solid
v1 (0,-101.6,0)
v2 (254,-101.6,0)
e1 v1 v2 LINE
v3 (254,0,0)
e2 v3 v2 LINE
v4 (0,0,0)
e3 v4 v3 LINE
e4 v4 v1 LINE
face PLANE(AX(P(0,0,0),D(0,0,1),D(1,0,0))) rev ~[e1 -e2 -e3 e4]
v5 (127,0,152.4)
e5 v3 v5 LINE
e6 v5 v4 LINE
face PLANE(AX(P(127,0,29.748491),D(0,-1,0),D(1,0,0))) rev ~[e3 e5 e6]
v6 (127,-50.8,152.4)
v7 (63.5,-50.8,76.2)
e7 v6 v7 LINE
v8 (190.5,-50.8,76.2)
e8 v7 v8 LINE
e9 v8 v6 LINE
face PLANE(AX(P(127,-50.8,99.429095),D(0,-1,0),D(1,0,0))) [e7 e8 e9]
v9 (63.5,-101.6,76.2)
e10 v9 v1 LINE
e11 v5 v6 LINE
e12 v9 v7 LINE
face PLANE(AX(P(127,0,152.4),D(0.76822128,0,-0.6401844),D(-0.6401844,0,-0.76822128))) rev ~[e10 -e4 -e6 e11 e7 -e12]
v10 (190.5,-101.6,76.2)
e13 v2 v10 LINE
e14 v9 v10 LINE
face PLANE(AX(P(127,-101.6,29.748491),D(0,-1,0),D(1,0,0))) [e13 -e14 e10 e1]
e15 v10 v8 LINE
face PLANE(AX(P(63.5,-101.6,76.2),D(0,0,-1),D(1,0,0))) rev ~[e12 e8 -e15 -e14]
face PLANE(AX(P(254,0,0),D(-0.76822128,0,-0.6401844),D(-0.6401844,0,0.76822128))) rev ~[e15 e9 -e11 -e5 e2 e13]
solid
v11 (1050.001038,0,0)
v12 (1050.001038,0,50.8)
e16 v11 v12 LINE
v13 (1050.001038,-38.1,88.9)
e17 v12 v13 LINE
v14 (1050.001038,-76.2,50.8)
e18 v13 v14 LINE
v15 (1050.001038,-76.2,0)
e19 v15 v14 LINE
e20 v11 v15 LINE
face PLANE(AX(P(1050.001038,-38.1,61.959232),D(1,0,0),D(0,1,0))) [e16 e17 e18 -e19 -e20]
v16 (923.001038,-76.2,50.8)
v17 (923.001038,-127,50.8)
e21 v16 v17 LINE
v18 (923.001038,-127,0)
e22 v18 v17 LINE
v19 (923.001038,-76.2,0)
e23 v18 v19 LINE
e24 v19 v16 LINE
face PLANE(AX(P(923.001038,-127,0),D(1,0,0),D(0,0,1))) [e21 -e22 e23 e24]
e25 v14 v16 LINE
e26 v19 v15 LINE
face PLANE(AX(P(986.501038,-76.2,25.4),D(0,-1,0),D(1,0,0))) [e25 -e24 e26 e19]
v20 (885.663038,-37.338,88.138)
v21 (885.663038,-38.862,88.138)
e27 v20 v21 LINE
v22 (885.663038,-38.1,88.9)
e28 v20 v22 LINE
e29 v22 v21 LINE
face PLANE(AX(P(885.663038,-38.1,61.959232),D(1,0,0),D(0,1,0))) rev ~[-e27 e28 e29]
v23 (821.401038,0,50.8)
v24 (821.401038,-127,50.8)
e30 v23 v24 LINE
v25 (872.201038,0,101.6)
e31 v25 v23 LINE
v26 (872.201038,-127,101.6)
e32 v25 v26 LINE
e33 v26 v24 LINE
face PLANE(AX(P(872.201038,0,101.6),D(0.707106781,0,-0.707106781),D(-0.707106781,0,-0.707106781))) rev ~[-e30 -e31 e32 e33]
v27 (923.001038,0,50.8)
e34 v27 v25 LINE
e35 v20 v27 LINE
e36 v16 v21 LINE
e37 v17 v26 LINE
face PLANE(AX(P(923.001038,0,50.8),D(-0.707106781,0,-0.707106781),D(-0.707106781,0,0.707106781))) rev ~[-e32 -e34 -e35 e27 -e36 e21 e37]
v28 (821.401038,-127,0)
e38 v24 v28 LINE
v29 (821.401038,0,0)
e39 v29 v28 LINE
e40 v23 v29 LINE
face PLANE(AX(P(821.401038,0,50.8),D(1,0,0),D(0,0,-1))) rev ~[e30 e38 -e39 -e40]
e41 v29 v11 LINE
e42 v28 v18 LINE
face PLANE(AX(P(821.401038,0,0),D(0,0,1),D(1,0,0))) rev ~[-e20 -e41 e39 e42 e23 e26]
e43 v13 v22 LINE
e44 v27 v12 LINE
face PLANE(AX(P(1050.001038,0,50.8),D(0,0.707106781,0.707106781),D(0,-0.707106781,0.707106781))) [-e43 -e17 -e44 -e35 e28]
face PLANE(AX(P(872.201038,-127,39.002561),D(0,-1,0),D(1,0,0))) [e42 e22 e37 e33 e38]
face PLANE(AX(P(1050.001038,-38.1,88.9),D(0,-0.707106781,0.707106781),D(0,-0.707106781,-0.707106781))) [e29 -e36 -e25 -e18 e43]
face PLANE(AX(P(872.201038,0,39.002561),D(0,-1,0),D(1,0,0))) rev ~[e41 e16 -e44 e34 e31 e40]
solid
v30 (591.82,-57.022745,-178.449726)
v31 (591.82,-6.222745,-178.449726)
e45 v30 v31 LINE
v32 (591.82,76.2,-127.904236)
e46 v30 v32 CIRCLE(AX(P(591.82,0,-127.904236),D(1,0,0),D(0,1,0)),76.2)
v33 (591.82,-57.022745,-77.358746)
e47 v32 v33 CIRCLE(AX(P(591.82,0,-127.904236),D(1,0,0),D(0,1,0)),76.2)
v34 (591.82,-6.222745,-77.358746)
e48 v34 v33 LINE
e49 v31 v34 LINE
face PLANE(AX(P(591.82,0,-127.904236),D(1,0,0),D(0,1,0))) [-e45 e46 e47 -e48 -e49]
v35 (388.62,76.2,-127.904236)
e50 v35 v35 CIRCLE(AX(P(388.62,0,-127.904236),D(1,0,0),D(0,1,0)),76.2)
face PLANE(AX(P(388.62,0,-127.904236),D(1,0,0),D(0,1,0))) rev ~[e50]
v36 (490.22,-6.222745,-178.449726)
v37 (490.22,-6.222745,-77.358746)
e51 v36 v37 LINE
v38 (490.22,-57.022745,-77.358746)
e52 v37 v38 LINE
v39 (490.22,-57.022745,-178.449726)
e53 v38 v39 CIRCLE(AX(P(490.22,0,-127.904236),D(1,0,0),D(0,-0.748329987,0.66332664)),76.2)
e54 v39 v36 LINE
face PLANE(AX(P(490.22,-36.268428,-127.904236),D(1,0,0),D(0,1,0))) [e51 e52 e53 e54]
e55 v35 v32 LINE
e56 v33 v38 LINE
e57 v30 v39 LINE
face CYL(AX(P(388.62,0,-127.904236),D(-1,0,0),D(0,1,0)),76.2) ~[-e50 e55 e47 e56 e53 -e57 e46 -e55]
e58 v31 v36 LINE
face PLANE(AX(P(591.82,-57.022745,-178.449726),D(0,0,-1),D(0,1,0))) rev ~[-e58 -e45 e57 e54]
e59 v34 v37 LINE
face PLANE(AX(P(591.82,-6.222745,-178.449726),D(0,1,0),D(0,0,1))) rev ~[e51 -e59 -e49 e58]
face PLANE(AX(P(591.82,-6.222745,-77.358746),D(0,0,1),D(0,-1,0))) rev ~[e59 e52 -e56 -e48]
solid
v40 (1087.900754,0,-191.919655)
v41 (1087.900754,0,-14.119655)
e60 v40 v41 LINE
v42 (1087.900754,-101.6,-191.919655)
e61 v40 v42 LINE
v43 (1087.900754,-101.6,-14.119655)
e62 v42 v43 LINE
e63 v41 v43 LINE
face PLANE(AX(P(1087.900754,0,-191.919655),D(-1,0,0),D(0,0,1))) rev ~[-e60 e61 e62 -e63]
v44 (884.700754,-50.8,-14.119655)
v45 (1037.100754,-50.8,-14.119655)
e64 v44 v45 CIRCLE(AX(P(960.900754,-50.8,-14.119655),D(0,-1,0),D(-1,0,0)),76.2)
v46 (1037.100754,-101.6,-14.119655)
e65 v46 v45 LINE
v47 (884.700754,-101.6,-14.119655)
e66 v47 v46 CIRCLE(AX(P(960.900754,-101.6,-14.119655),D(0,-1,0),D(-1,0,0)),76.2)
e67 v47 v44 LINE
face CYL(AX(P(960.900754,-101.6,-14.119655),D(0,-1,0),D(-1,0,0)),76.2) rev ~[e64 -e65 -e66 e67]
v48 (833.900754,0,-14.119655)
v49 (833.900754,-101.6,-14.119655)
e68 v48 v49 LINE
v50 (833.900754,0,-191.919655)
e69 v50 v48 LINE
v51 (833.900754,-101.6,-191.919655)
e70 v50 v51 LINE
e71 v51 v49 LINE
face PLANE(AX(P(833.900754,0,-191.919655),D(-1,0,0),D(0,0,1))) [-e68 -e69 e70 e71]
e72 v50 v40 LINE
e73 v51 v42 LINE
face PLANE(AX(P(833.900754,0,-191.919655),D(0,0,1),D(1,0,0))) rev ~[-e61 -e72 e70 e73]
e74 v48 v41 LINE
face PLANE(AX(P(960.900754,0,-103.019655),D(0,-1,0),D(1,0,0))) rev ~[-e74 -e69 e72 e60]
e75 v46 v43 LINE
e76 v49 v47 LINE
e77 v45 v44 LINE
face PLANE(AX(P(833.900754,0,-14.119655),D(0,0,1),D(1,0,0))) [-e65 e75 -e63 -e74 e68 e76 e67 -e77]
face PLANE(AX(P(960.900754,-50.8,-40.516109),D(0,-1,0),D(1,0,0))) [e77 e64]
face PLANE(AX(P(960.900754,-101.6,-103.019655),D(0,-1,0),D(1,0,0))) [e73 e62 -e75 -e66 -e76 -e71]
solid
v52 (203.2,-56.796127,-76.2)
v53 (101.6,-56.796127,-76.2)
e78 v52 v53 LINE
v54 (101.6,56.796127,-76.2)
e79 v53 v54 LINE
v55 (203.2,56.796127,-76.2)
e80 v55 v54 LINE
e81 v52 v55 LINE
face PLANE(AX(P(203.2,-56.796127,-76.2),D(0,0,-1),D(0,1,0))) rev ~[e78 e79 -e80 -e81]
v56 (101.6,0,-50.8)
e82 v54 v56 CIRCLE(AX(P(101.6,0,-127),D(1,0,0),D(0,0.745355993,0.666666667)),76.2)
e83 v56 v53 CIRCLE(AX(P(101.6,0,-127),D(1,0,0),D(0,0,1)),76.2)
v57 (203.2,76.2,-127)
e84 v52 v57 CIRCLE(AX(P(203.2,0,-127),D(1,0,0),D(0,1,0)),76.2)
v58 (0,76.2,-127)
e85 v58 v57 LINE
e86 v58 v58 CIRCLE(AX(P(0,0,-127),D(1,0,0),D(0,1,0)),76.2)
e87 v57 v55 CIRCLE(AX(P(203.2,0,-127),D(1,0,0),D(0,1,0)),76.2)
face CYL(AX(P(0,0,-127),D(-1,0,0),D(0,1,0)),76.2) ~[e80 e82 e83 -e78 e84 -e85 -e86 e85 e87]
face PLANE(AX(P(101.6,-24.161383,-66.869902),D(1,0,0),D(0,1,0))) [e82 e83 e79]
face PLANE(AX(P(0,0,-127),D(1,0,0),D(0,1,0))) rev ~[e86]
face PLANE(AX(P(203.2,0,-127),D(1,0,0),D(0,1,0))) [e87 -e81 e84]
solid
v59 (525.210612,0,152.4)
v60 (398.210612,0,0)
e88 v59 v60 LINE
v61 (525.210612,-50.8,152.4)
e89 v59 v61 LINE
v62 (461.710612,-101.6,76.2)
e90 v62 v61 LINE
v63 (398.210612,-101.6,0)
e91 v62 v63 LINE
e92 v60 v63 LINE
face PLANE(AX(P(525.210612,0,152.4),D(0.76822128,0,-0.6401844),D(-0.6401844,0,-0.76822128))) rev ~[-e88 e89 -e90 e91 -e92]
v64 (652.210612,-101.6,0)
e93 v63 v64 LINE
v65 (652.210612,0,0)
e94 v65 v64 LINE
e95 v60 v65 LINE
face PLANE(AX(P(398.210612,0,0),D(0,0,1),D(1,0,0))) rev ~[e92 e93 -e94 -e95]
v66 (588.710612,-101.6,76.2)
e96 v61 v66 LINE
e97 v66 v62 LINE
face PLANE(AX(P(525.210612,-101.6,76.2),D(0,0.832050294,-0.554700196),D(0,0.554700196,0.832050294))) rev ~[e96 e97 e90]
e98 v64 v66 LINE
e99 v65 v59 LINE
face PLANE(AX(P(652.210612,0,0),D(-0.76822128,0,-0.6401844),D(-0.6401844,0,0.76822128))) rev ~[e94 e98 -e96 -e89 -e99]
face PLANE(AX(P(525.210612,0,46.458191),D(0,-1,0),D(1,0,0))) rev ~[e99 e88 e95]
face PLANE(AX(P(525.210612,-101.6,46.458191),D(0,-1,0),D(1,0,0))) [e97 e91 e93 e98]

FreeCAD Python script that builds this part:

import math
import FreeCAD as App
import Part
import Sketcher

V = App.Vector
Q = App.Units.Quantity

doc = App.newDocument("Part")
body = doc.addObject("PartDesign::Body", "Body")

sketch1 = body.newObject("Sketcher::SketchObject", "Sketch")
sketch1.AttachmentSupport = (doc.getObject("XZ_Plane"), [""])
sketch1.MapMode = "FlatFace"
sketch1.addGeometry([
    Part.LineSegment(V(0, 0, 0), V(254, 0, 0)),
    Part.LineSegment(V(254, 0, 0), V(127, 152, 0)),
    Part.LineSegment(V(127, 152, 0), V(0, 0, 0)),
], False)
sketch1.addConstraint([
    Sketcher.Constraint("Coincident", 0, 2, 1, 1),
    Sketcher.Constraint("Coincident", 1, 2, 2, 1),
    Sketcher.Constraint("Coincident", 2, 2, 0, 1),
    Sketcher.Constraint("Horizontal", 0),
    Sketcher.Constraint("Coincident", 2, 2, -1, 1),
    Sketcher.Constraint("Equal", 1, 2),
    Sketcher.Constraint("DistanceX", 0, 1, 0, 2, Q("10 in")),
    Sketcher.Constraint("DistanceY", -1, 1, 1, 2, Q("6 in")),
])
pad1 = body.newObject("PartDesign::Pad", "Pad")
pad1.Profile = sketch1
pad1.Length = Q("4 in")

sketch2 = body.newObject("Sketcher::SketchObject", "Sketch001")
sketch2.AttachmentSupport = (doc.getObject("XZ_Plane"), [""])
sketch2.MapMode = "FlatFace"
sketch2.AttachmentOffset = App.Placement(V(0, 0, 4 * 25.4), App.Rotation())
sketch2.addGeometry([
    Part.LineSegment(V(64, 76, 0), V(190, 76, 0)),
    Part.LineSegment(V(190, 76, 0), V(127, 152, 0)),
    Part.LineSegment(V(127, 152, 0), V(64, 76, 0)),
], False)
sketch2.addConstraint([
    Sketcher.Constraint("Coincident", 0, 2, 1, 1),
    Sketcher.Constraint("Coincident", 1, 2, 2, 1),
    Sketcher.Constraint("Coincident", 2, 2, 0, 1),
    Sketcher.Constraint("Horizontal", 0),
    Sketcher.Constraint("Equal", 1, 2),
    Sketcher.Constraint("DistanceX", 0, 1, 0, 2, Q("5 in")),
    Sketcher.Constraint("DistanceY", -1, 1, 0, 2, Q("3 in")),
    Sketcher.Constraint("DistanceX", -1, 1, 1, 2, Q("5 in")),
    Sketcher.Constraint("DistanceY", -1, 1, 1, 2, Q("6 in")),
])
pocket1 = body.newObject("PartDesign::Pocket", "Pocket")
pocket1.Profile = sketch2
pocket1.Length = Q("2 in")

sketch3 = body.newObject("Sketcher::SketchObject", "Sketch002")
sketch3.Placement = App.Placement(V(384.911181, 0, 320.759317), App.Rotation(V(0, 1, 0), V(-0.6401844, 0, 0.76822128), V(0.76822128, 0, 0.6401844), "ZXY"))
sketch3.addGeometry([
    Part.LineSegment(V(-102, -219, 0), V(-102, -318, 0)),
    Part.LineSegment(V(-102, -318, 0), V(-51, -219, 0)),
    Part.LineSegment(V(-51, -219, 0), V(-102, -219, 0)),
], False)
sketch3.addConstraint([
    Sketcher.Constraint("Coincident", 0, 2, 1, 1),
    Sketcher.Constraint("Coincident", 1, 2, 2, 1),
    Sketcher.Constraint("Coincident", 2, 2, 0, 1),
    Sketcher.Constraint("Vertical", 0),
    Sketcher.Constraint("Horizontal", 2),
    Sketcher.Constraint("DistanceX", 2, 2, 2, 1, Q("2 in")),
    Sketcher.Constraint("DistanceX", 0, 2, -1, 1, Q("4 in")),
    Sketcher.Constraint("DistanceY", 0, 2, 0, 1, 99.190171),
    Sketcher.Constraint("DistanceY", 0, 2, -1, 1, 318.344888),
])
pocket2 = body.newObject("PartDesign::Pocket", "Pocket001")
pocket2.Profile = sketch3
pocket2.Length = Q("4 in")
pocket2.Reversed = True
body2 = doc.addObject("PartDesign::Body", "Body001")

sketch4 = body2.newObject("Sketcher::SketchObject", "Sketch003")
sketch4.AttachmentSupport = (doc.getObject("XZ_Plane001"), [""])
sketch4.MapMode = "FlatFace"
sketch4.addGeometry([
    Part.LineSegment(V(525, 152, 0), V(398, 0, 0)),
    Part.LineSegment(V(398, 0, 0), V(652, 0, 0)),
    Part.LineSegment(V(652, 0, 0), V(525, 152, 0)),
], False)
sketch4.addConstraint([
    Sketcher.Constraint("Coincident", 0, 2, 1, 1),
    Sketcher.Constraint("Coincident", 1, 2, 2, 1),
    Sketcher.Constraint("Coincident", 2, 2, 0, 1),
    Sketcher.Constraint("Horizontal", 1),
    Sketcher.Constraint("PointOnObject", 0, 2, -1),
    Sketcher.Constraint("Equal", 0, 2),
    Sketcher.Constraint("DistanceX", 1, 1, 1, 2, Q("10 in")),
    Sketcher.Constraint("DistanceY", -1, 1, 2, 2, Q("6 in")),
    Sketcher.Constraint("DistanceX", -1, 1, 0, 2, 398.210612),
])
pad2 = body2.newObject("PartDesign::Pad", "Pad001")
pad2.Profile = sketch4
pad2.Length = Q("4 in")

sketch5 = body2.newObject("Sketcher::SketchObject", "Sketch004")
sketch5.AttachmentSupport = (doc.getObject("YZ_Plane001"), [""])
sketch5.MapMode = "FlatFace"
sketch5.AttachmentOffset = App.Placement(V(0, 0, 525.210612), App.Rotation())
sketch5.addGeometry([
    Part.LineSegment(V(-51, 152, 0), V(-102, 152, 0)),
    Part.LineSegment(V(-102, 152, 0), V(-102, 76, 0)),
    Part.LineSegment(V(-102, 76, 0), V(-51, 152, 0)),
], False)
sketch5.addConstraint([
    Sketcher.Constraint("Coincident", 0, 2, 1, 1),
    Sketcher.Constraint("Coincident", 1, 2, 2, 1),
    Sketcher.Constraint("Coincident", 2, 2, 0, 1),
    Sketcher.Constraint("Horizontal", 0),
    Sketcher.Constraint("Vertical", 1),
    Sketcher.Constraint("DistanceX", 0, 2, 0, 1, Q("2 in")),
    Sketcher.Constraint("DistanceY", 1, 2, 1, 1, Q("3 in")),
    Sketcher.Constraint("DistanceX", 0, 2, -1, 1, Q("4 in")),
    Sketcher.Constraint("DistanceY", -1, 1, 0, 2, Q("6 in")),
])
pocket3 = body2.newObject("PartDesign::Pocket", "Pocket002")
pocket3.Profile = sketch5
pocket3.Length = Q("5 in")
pocket3.Midplane = True
body3 = doc.addObject("PartDesign::Body", "Body002")

sketch6 = body3.newObject("Sketcher::SketchObject", "Sketch005")
sketch6.AttachmentSupport = (doc.getObject("XZ_Plane002"), [""])
sketch6.MapMode = "FlatFace"
sketch6.addGeometry([
    Part.LineSegment(V(821, 0, 0), V(1050, 0, 0)),
    Part.LineSegment(V(1050, 0, 0), V(1050, 51, 0)),
    Part.LineSegment(V(1050, 51, 0), V(923, 51, 0)),
    Part.LineSegment(V(923, 51, 0), V(872, 102, 0)),
    Part.LineSegment(V(872, 102, 0), V(821, 51, 0)),
    Part.LineSegment(V(821, 51, 0), V(821, 0, 0)),
], False)
sketch6.addConstraint([
    Sketcher.Constraint("Coincident", 0, 2, 1, 1),
    Sketcher.Constraint("Coincident", 1, 2, 2, 1),
    Sketcher.Constraint("Coincident", 2, 2, 3, 1),
    Sketcher.Constraint("Coincident", 3, 2, 4, 1),
    Sketcher.Constraint("Coincident", 4, 2, 5, 1),
    Sketcher.Constraint("Coincident", 5, 2, 0, 1),
    Sketcher.Constraint("Horizontal", 0),
    Sketcher.Constraint("Vertical", 1),
    Sketcher.Constraint("Horizontal", 2),
    Sketcher.Constraint("Vertical", 5),
    Sketcher.Constraint("PointOnObject", 0, 2, -1),
    Sketcher.Constraint("Perpendicular", 3, 4),
    Sketcher.Constraint("Horizontal", 2, 2, 4, 2),
    Sketcher.Constraint("Equal", 3, 4),
    Sketcher.Constraint("DistanceX", 0, 1, 0, 2, Q("9 in")),
    Sketcher.Constraint("DistanceX", 2, 2, 2, 1, Q("5 in")),
    Sketcher.Constraint("DistanceY", 1, 1, 1, 2, Q("2 in")),
    Sketcher.Constraint("DistanceX", -1, 1, 0, 2, 1050.001038),
])
pad3 = body3.newObject("PartDesign::Pad", "Pad002")
pad3.Profile = sketch6
pad3.Length = Q("5 in")

sketch7 = body3.newObject("Sketcher::SketchObject", "Sketch006")
sketch7.AttachmentSupport = (doc.getObject("YZ_Plane002"), [""])
sketch7.MapMode = "FlatFace"
sketch7.AttachmentOffset = App.Placement(V(0, 0, 1050.001038), App.Rotation())
sketch7.addGeometry([
    Part.LineSegment(V(-38, 89, 0), V(-76, 51, 0)),
    Part.LineSegment(V(-76, 51, 0), V(0, 51, 0)),
    Part.LineSegment(V(0, 51, 0), V(-38, 89, 0)),
], False)
sketch7.addConstraint([
    Sketcher.Constraint("Coincident", 0, 2, 1, 1),
    Sketcher.Constraint("Coincident", 1, 2, 2, 1),
    Sketcher.Constraint("Coincident", 2, 2, 0, 1),
    Sketcher.Constraint("Horizontal", 1),
    Sketcher.Constraint("PointOnObject", 1, 2, -2),
    Sketcher.Constraint("Perpendicular", 0, 2),
    Sketcher.Constraint("Equal", 0, 2),
    Sketcher.Constraint("DistanceX", 1, 1, 1, 2, Q("3 in")),
    Sketcher.Constraint("DistanceY", -1, 1, 0, 2, Q("2 in")),
])
pad4 = body3.newObject("PartDesign::Pad", "Pad003")
pad4.Profile = sketch7
pad4.Length = Q("6.47 in")
pad4.Reversed = True

sketch8 = body3.newObject("Sketcher::SketchObject", "Sketch007")
sketch8.AttachmentSupport = (doc.getObject("XZ_Plane002"), [""])
sketch8.MapMode = "FlatFace"
sketch8.AttachmentOffset = App.Placement(V(0, 0, 5 * 25.4), App.Rotation())
sketch8.addGeometry([
    Part.LineSegment(V(923, 51, 0), V(923, 0, 0)),
    Part.LineSegment(V(923, 0, 0), V(1050, 0, 0)),
    Part.LineSegment(V(1050, 0, 0), V(1050, 51, 0)),
    Part.LineSegment(V(1050, 51, 0), V(923, 51, 0)),
], False)
sketch8.addConstraint([
    Sketcher.Constraint("Coincident", 0, 2, 1, 1),
    Sketcher.Constraint("Coincident", 1, 2, 2, 1),
    Sketcher.Constraint("Coincident", 2, 2, 3, 1),
    Sketcher.Constraint("Coincident", 3, 2, 0, 1),
    Sketcher.Constraint("Vertical", 0),
    Sketcher.Constraint("Horizontal", 1),
    Sketcher.Constraint("Vertical", 2),
    Sketcher.Constraint("Horizontal", 3),
    Sketcher.Constraint("PointOnObject", 0, 2, -1),
    Sketcher.Constraint("DistanceX", 1, 1, 1, 2, Q("5 in")),
    Sketcher.Constraint("DistanceY", 0, 2, 0, 1, Q("2 in")),
    Sketcher.Constraint("DistanceX", -1, 1, 0, 2, 923.001038),
])
pocket4 = body3.newObject("PartDesign::Pocket", "Pocket003")
pocket4.Profile = sketch8
pocket4.Length = Q("2 in")
body4 = doc.addObject("PartDesign::Body", "Body003")

sketch9 = body4.newObject("Sketcher::SketchObject", "Sketch008")
sketch9.AttachmentSupport = (doc.getObject("YZ_Plane003"), [""])
sketch9.MapMode = "FlatFace"
sketch9.addGeometry(Part.Circle(V(0, -127, 0), V(0, 0, 1), 76), False)
sketch9.addConstraint([
    Sketcher.Constraint("PointOnObject", 0, 3, -2),
    Sketcher.Constraint("Diameter", 0, Q("6 in")),
    Sketcher.Constraint("DistanceY", 0, 3, -1, 1, Q("5 in")),
])
pad5 = body4.newObject("PartDesign::Pad", "Pad004")
pad5.Profile = sketch9
pad5.Length = Q("8 in")

sketch10 = body4.newObject("Sketcher::SketchObject", "Sketch009")
sketch10.AttachmentSupport = (doc.getObject("YZ_Plane003"), [""])
sketch10.MapMode = "FlatFace"
sketch10.AttachmentOffset = App.Placement(V(0, 0, 8 * 25.4), App.Rotation())
sketch10.addGeometry([
    Part.LineSegment(V(-57, -76, 0), V(57, -76, 0)),
    Part.ArcOfCircle(Part.Circle(V(0, -127, 0), V(0, 0, 1), 76), math.radians(42), math.radians(90)),
    Part.ArcOfCircle(Part.Circle(V(0, -127, 0), V(0, 0, 1), 76), math.radians(90), math.radians(138)),
], False)
sketch10.addConstraint([
    Sketcher.Constraint("Coincident", 0, 2, 1, 1),
    Sketcher.Constraint("Tangent", 1, 2, 2, 1),
    Sketcher.Constraint("Coincident", 2, 2, 0, 1),
    Sketcher.Constraint("Horizontal", 0),
    Sketcher.Constraint("Equal", 1, 2),
    Sketcher.Constraint("PointOnObject", 1, 3, -2),
    Sketcher.Constraint("PointOnObject", 1, 2, -2),
    Sketcher.Constraint("Radius", 1, Q("3 in")),
    Sketcher.Constraint("DistanceY", 1, 3, -1, 1, Q("5 in")),
    Sketcher.Constraint("DistanceY", 0, 2, -1, 1, Q("3 in")),
])
pocket5 = body4.newObject("PartDesign::Pocket", "Pocket004")
pocket5.Profile = sketch10
pocket5.Length = Q("4 in")
body5 = doc.addObject("PartDesign::Body", "Body004")

sketch11 = body5.newObject("Sketcher::SketchObject", "Sketch010")
sketch11.AttachmentSupport = (doc.getObject("YZ_Plane004"), [""])
sketch11.MapMode = "FlatFace"
sketch11.AttachmentOffset = App.Placement(V(0, 0, 15.3 * 25.4), App.Rotation())
sketch11.addGeometry(Part.Circle(V(0, -128, 0), V(0, 0, 1), 76), False)
sketch11.addConstraint([
    Sketcher.Constraint("PointOnObject", 0, 3, -2),
    Sketcher.Constraint("Diameter", 0, Q("6 in")),
    Sketcher.Constraint("DistanceY", 0, 3, -1, 1, Q("5.0355999 in")),
])
pad6 = body5.newObject("PartDesign::Pad", "Pad005")
pad6.Profile = sketch11
pad6.Length = Q("8 in")

sketch12 = body5.newObject("Sketcher::SketchObject", "Sketch011")
sketch12.AttachmentSupport = (doc.getObject("YZ_Plane004"), [""])
sketch12.MapMode = "FlatFace"
sketch12.AttachmentOffset = App.Placement(V(0, 0, 23.3 * 25.4), App.Rotation())
sketch12.addGeometry([
    Part.LineSegment(V(-57, -178, 0), V(-6, -178, 0)),
    Part.LineSegment(V(-6, -178, 0), V(-6, -77, 0)),
    Part.LineSegment(V(-6, -77, 0), V(-57, -77, 0)),
    Part.ArcOfCircle(Part.Circle(V(0, -128, 0), V(0, 0, 1), 76), math.radians(138), math.radians(222)),
], False)
sketch12.addConstraint([
    Sketcher.Constraint("Coincident", 0, 2, 1, 1),
    Sketcher.Constraint("Coincident", 1, 2, 2, 1),
    Sketcher.Constraint("Coincident", 2, 2, 3, 1),
    Sketcher.Constraint("Coincident", 3, 2, 0, 1),
    Sketcher.Constraint("Horizontal", 0),
    Sketcher.Constraint("Vertical", 1),
    Sketcher.Constraint("Horizontal", 2),
    Sketcher.Constraint("PointOnObject", 3, 3, -2),
    Sketcher.Constraint("Vertical", 2, 2, 3, 2),
    Sketcher.Constraint("Radius", 3, Q("3 in")),
    Sketcher.Constraint("DistanceX", 0, 1, 0, 2, Q("2 in")),
    Sketcher.Constraint("DistanceY", 3, 3, -1, 1, Q("5.0355999 in")),
    Sketcher.Constraint("DistanceY", 1, 1, 1, 2, 101.09098),
])
pocket6 = body5.newObject("PartDesign::Pocket", "Pocket005")
pocket6.Profile = sketch12
pocket6.Length = Q("4 in")
body6 = doc.addObject("PartDesign::Body", "Body005")

sketch13 = body6.newObject("Sketcher::SketchObject", "Sketch012")
sketch13.AttachmentSupport = (doc.getObject("XZ_Plane005"), [""])
sketch13.MapMode = "FlatFace"
sketch13.addGeometry([
    Part.LineSegment(V(834, -14, 0), V(834, -192, 0)),
    Part.LineSegment(V(834, -192, 0), V(1088, -192, 0)),
    Part.LineSegment(V(1088, -192, 0), V(1088, -14, 0)),
    Part.LineSegment(V(1088, -14, 0), V(834, -14, 0)),
], False)
sketch13.addConstraint([
    Sketcher.Constraint("Coincident", 0, 2, 1, 1),
    Sketcher.Constraint("Coincident", 1, 2, 2, 1),
    Sketcher.Constraint("Coincident", 2, 2, 3, 1),
    Sketcher.Constraint("Coincident", 3, 2, 0, 1),
    Sketcher.Constraint("Vertical", 0),
    Sketcher.Constraint("Horizontal", 1),
    Sketcher.Constraint("Vertical", 2),
    Sketcher.Constraint("Horizontal", 3),
    Sketcher.Constraint("DistanceX", 1, 1, 1, 2, Q("10 in")),
    Sketcher.Constraint("DistanceY", 0, 2, 0, 1, Q("7 in")),
    Sketcher.Constraint("DistanceX", -1, 1, 0, 2, 833.900754),
    Sketcher.Constraint("DistanceY", 0, 2, -1, 1, 191.919655),
])
pad7 = body6.newObject("PartDesign::Pad", "Pad006")
pad7.Profile = sketch13
pad7.Length = Q("4 in")

sketch14 = body6.newObject("Sketcher::SketchObject", "Sketch013")
sketch14.AttachmentSupport = (doc.getObject("XZ_Plane005"), [""])
sketch14.MapMode = "FlatFace"
sketch14.AttachmentOffset = App.Placement(V(0, 0, 4 * 25.4), App.Rotation())
sketch14.addGeometry([
    Part.ArcOfCircle(Part.Circle(V(961, -14, 0), V(0, 0, 1), 76), math.radians(180), math.radians(360)),
    Part.LineSegment(V(1037, -14, 0), V(885, -14, 0)),
], False)
sketch14.addConstraint([
    Sketcher.Constraint("Coincident", 0, 1, 1, 2),
    Sketcher.Constraint("Coincident", 1, 1, 0, 2),
    Sketcher.Constraint("Horizontal", 1),
    Sketcher.Constraint("Radius", 0, Q("3 in")),
    Sketcher.Constraint("DistanceX", -1, 1, 0, 3, 960.900754),
    Sketcher.Constraint("DistanceY", 0, 3, -1, 1, 14.119655),
    Sketcher.Constraint("DistanceY", 0, 1, -1, 1, 14.119655),
])
pocket7 = body6.newObject("PartDesign::Pocket", "Pocket006")
pocket7.Profile = sketch14
pocket7.Length = Q("2 in")

doc.recompute()
